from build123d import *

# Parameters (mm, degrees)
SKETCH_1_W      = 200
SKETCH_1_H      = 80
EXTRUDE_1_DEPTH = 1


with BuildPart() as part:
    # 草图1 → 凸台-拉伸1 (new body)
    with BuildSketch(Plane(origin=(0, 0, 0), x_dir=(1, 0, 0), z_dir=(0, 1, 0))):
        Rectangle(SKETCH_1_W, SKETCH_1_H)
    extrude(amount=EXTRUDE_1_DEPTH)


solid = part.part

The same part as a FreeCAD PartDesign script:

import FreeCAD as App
import Part
import Sketcher

V = App.Vector


def add_polygon(sketch, points):
    """Adds a closed chain of lines whose ends are joined by coincident constraints."""
    first, n = sketch.GeometryCount, len(points)
    for a, b in zip(points, points[1:] + points[:1]):
        sketch.addGeometry(Part.LineSegment(App.Vector(*a, 0), App.Vector(*b, 0)), False)
    for i in range(n):
        sketch.addConstraint(Sketcher.Constraint("Coincident", first + i, 2, first + (i + 1) % n, 1))

doc = App.newDocument("Part")
body = doc.addObject("PartDesign::Body", "Body")

# Sketch on XZ plane
sketch1 = body.newObject("Sketcher::SketchObject", "Sketch")
sketch1.AttachmentSupport = (doc.getObject("XZ_Plane"), [""])
sketch1.MapMode = "FlatFace"
add_polygon(sketch1, [(-100, -40), (-100, 40), (100, 40), (100, -40)])  # lines 0-3
sketch1.addConstraint([
    Sketcher.Constraint("Vertical", 0),
    Sketcher.Constraint("Horizontal", 1),
    Sketcher.Constraint("Vertical", 2),
    Sketcher.Constraint("Horizontal", 3),
    Sketcher.Constraint("Symmetric", 0, 2, 2, 2, -1, 1),
    Sketcher.Constraint("DistanceX", 1, 1, 1, 2, 200.0),
    Sketcher.Constraint("DistanceY", 0, 1, 0, 2, 80.0),
])
pad1 = body.newObject("PartDesign::Pad", "Pad")
pad1.Profile = sketch1
pad1.Length = 1
pad1.Reversed = True

doc.recompute()
